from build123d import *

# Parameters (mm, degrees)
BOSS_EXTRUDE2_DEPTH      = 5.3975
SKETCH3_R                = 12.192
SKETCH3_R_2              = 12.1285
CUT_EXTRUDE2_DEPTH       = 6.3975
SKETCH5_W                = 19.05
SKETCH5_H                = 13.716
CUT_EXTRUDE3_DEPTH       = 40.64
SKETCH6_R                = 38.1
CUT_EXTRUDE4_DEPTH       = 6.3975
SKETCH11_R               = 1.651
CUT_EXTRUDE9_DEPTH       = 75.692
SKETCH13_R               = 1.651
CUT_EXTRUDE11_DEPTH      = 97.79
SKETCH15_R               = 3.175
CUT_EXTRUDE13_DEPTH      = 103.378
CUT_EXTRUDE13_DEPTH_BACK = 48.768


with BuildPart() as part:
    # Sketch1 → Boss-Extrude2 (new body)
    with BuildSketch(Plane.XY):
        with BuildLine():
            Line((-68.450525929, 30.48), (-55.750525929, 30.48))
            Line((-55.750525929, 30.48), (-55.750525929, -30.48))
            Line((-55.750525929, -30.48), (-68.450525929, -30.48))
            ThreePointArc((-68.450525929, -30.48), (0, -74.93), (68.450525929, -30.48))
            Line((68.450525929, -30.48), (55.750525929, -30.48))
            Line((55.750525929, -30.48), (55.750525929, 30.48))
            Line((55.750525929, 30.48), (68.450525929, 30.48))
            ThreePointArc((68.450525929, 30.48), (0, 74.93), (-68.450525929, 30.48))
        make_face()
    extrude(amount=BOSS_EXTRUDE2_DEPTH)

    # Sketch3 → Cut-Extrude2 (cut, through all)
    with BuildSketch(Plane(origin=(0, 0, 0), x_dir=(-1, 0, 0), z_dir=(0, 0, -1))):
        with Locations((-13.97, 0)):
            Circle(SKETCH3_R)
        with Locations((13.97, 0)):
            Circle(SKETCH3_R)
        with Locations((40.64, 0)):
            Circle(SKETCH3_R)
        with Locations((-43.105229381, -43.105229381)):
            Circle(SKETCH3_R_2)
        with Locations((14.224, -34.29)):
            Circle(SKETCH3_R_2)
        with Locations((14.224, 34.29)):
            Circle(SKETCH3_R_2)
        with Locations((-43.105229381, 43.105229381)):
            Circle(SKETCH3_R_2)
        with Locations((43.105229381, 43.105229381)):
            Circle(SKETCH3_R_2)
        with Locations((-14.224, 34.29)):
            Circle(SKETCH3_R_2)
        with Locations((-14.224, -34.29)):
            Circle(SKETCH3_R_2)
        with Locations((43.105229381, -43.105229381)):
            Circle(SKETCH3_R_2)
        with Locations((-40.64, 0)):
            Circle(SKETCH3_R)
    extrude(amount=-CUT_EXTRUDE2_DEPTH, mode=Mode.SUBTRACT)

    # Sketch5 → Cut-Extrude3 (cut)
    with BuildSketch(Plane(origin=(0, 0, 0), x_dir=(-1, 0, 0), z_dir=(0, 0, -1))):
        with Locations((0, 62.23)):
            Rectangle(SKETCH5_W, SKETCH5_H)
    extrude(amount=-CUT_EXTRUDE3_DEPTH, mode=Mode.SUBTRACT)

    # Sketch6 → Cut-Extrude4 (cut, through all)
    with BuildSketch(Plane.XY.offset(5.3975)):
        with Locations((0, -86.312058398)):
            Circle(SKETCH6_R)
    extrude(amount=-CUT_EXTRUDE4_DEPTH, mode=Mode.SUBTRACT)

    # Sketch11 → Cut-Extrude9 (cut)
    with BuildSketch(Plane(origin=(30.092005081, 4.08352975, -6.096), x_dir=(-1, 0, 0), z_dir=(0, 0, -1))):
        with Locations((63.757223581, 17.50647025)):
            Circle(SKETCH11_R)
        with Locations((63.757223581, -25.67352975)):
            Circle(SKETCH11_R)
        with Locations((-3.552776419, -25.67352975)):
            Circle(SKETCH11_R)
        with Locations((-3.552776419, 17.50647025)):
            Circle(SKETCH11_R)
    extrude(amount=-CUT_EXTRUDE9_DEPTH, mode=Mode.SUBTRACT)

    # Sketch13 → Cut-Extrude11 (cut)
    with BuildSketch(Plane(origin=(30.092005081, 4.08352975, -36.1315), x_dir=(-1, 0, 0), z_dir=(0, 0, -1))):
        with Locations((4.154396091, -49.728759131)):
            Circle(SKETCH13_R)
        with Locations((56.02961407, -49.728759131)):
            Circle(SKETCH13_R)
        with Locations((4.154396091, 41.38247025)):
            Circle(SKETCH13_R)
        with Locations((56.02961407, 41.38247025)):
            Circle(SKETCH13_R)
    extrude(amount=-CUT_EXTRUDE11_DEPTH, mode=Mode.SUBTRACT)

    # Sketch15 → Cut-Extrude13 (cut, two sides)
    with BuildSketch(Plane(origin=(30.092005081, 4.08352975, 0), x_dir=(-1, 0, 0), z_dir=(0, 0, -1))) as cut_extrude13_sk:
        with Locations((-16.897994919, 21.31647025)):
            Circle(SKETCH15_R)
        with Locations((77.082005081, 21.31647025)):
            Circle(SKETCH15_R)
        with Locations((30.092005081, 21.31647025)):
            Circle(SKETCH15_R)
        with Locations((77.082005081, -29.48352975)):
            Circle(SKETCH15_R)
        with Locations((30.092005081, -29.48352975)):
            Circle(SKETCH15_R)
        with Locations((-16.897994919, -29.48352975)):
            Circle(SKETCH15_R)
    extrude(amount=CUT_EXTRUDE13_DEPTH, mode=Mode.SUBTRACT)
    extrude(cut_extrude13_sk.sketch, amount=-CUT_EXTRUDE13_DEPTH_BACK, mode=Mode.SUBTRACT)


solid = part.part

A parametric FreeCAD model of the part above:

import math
import FreeCAD as App
import Part
import Sketcher
Q = App.Units.Quantity


def add_polygon(sketch, points):
    """Adds a closed chain of lines whose ends are joined by coincident constraints."""
    first, n = sketch.GeometryCount, len(points)
    for a, b in zip(points, points[1:] + points[:1]):
        sketch.addGeometry(Part.LineSegment(App.Vector(*a, 0), App.Vector(*b, 0)), False)
    for i in range(n):
        sketch.addConstraint(Sketcher.Constraint("Coincident", first + i, 2, first + (i + 1) % n, 1))

doc = App.newDocument("Part")
params = doc.addObject("Spreadsheet::Sheet", "Params")
for row, (alias, value) in enumerate([
    ("sketch1_radius", "2.95 in"),
    ("sketch1_width", "0.5 in"),
    ("sketch1_height", "2.4 in"),
    ("pad1_length", "0.2125 in"),
    ("sketch2_diameter", "0.96 in"),
    ("sketch2_diameter2", "0.955 in"),
    ("sketch3_width", "0.75 in"),
    ("sketch3_height", "0.54 in"),
    ("pocket2_length", "1.6 in"),
    ("sketch4_diameter", "3 in"),
    ("sketch5_diameter", "0.13 in"),
    ("pocket4_length", "2.98 in"),
    ("sketch6_diameter", "0.13 in"),
    ("pocket5_length", "3.85 in"),
    ("sketch7_diameter", "0.25 in"),
], start=1):
    params.set(f"A{row}", alias)
    params.set(f"B{row}", "=" + value)
    params.setAlias(f"B{row}", alias)

body = doc.addObject("PartDesign::Body", "Body")

sketch1 = body.newObject("Sketcher::SketchObject", "Sketch")
sketch1.AttachmentSupport = (doc.getObject("XY_Plane"), [""])
sketch1.MapMode = "FlatFace"
sketch1.addGeometry([
    Part.LineSegment(App.Vector(-68, 30, 0), App.Vector(-56, 30, 0)),
    Part.LineSegment(App.Vector(-56, 30, 0), App.Vector(-56, -30, 0)),
    Part.LineSegment(App.Vector(-56, -30, 0), App.Vector(-68, -30, 0)),
    Part.ArcOfCircle(Part.Circle(App.Vector(0, 0, 0), App.Vector(0, 0, 1), 75), math.radians(-156), math.radians(-24)),
    Part.LineSegment(App.Vector(68, -30, 0), App.Vector(56, -30, 0)),
    Part.LineSegment(App.Vector(56, -30, 0), App.Vector(56, 30, 0)),
    Part.LineSegment(App.Vector(56, 30, 0), App.Vector(68, 30, 0)),
    Part.ArcOfCircle(Part.Circle(App.Vector(0, 0, 0), App.Vector(0, 0, 1), 75), math.radians(24), math.radians(156)),
], False)
sketch1.addConstraint([
    Sketcher.Constraint("Coincident", 0, 2, 1, 1),
    Sketcher.Constraint("Coincident", 1, 2, 2, 1),
    Sketcher.Constraint("Coincident", 2, 2, 3, 1),
    Sketcher.Constraint("Coincident", 3, 2, 4, 1),
    Sketcher.Constraint("Coincident", 4, 2, 5, 1),
    Sketcher.Constraint("Coincident", 5, 2, 6, 1),
    Sketcher.Constraint("Coincident", 6, 2, 7, 1),
    Sketcher.Constraint("Coincident", 7, 2, 0, 1),
    Sketcher.Constraint("Horizontal", 0),
    Sketcher.Constraint("Vertical", 1),
    Sketcher.Constraint("Horizontal", 2),
    Sketcher.Constraint("Horizontal", 4),
    Sketcher.Constraint("Vertical", 5),
    Sketcher.Constraint("Horizontal", 6),
    Sketcher.Constraint("Coincident", 3, 3, -1, 1),
    Sketcher.Constraint("Coincident", 7, 3, -1, 1),
    Sketcher.Constraint("Equal", 3, 7),
    Sketcher.Constraint("Symmetric", 0, 2, 4, 2, -1, 1),
    Sketcher.Constraint("Horizontal", 2, 2, 3, 2),
    Sketcher.Constraint("Horizontal", 0, 2, 5, 2),
    Sketcher.Constraint("Radius", 3, Q("2.95 in")),
    Sketcher.Constraint("DistanceX", 0, 1, 0, 2, Q("0.5 in")),
    Sketcher.Constraint("DistanceY", 1, 2, 1, 1, Q("2.4 in")),
])
sketch1.setExpression("Constraints[20]", "Params.sketch1_radius")
sketch1.setExpression("Constraints[21]", "Params.sketch1_width")
sketch1.setExpression("Constraints[22]", "Params.sketch1_height")
pad1 = body.newObject("PartDesign::Pad", "Pad")
pad1.Profile = sketch1
pad1.setExpression("Length", "Params.pad1_length")

sketch2 = body.newObject("Sketcher::SketchObject", "Sketch001")
sketch2.AttachmentSupport = (doc.getObject("XY_Plane"), [""])
sketch2.MapMode = "FlatFace"
sketch2.addGeometry([
    Part.Circle(App.Vector(14, 0, 0), App.Vector(0, 0, 1), 12),
    Part.Circle(App.Vector(-14, 0, 0), App.Vector(0, 0, 1), 12),
    Part.Circle(App.Vector(-41, 0, 0), App.Vector(0, 0, 1), 12),
    Part.Circle(App.Vector(43, -43, 0), App.Vector(0, 0, 1), 12),
    Part.Circle(App.Vector(-14, -34, 0), App.Vector(0, 0, 1), 12),
    Part.Circle(App.Vector(-14, 34, 0), App.Vector(0, 0, 1), 12),
    Part.Circle(App.Vector(43, 43, 0), App.Vector(0, 0, 1), 12),
    Part.Circle(App.Vector(-43, 43, 0), App.Vector(0, 0, 1), 12),
    Part.Circle(App.Vector(14, 34, 0), App.Vector(0, 0, 1), 12),
    Part.Circle(App.Vector(14, -34, 0), App.Vector(0, 0, 1), 12),
    Part.Circle(App.Vector(-43, -43, 0), App.Vector(0, 0, 1), 12),
    Part.Circle(App.Vector(41, 0, 0), App.Vector(0, 0, 1), 12),
], False)
sketch2.addConstraint([
    Sketcher.Constraint("Equal", 0, 1),
    Sketcher.Constraint("Equal", 1, 2),
    Sketcher.Constraint("Equal", 3, 4),
    Sketcher.Constraint("Equal", 4, 5),
    Sketcher.Constraint("Equal", 5, 6),
    Sketcher.Constraint("Equal", 6, 7),
    Sketcher.Constraint("Equal", 7, 8),
    Sketcher.Constraint("Equal", 8, 9),
    Sketcher.Constraint("Equal", 9, 10),
    Sketcher.Constraint("Equal", 2, 11),
    Sketcher.Constraint("Symmetric", 0, 3, 1, 3, -1, 1),
    Sketcher.Constraint("Symmetric", 3, 3, 7, 3, -1, 1),
    Sketcher.Constraint("Symmetric", 4, 3, 8, 3, -1, 1),
    Sketcher.Constraint("Symmetric", 5, 3, 9, 3, -1, 1),
    Sketcher.Constraint("Symmetric", 6, 3, 10, 3, -1, 1),
    Sketcher.Constraint("Symmetric", 2, 3, 11, 3, -1, 1),
    Sketcher.Constraint("Symmetric", 6, 3, 7, 3, -2),
    Sketcher.Constraint("Symmetric", 5, 3, 8, 3, -2),
    Sketcher.Constraint("PointOnObject", 0, 3, -1),
    Sketcher.Constraint("PointOnObject", 2, 3, -1),
    Sketcher.Constraint("Diameter", 0, Q("0.96 in")),
    Sketcher.Constraint("Diameter", 3, Q("0.955 in")),
    Sketcher.Constraint("DistanceX", 2, 3, -1, 1, Q("1.6 in")),
    Sketcher.Constraint("DistanceX", 1, 3, 0, 3, Q("1.1 in")),
    Sketcher.Constraint("DistanceY", 4, 3, 5, 3, Q("2.7 in")),
    Sketcher.Constraint("DistanceX", 4, 3, -1, 1, Q("0.56 in")),
    Sketcher.Constraint("DistanceX", -1, 1, 3, 3, 43.105229),
    Sketcher.Constraint("DistanceY", 3, 3, -1, 1, 43.105229),
])
sketch2.setExpression("Constraints[20]", "Params.sketch2_diameter")
sketch2.setExpression("Constraints[21]", "Params.sketch2_diameter2")
pocket1 = body.newObject("PartDesign::Pocket", "Pocket")
pocket1.Profile = sketch2
pocket1.Type = "ThroughAll"
pocket1.Reversed = True

sketch3 = body.newObject("Sketcher::SketchObject", "Sketch002")
sketch3.AttachmentSupport = (doc.getObject("XY_Plane"), [""])
sketch3.MapMode = "FlatFace"
add_polygon(sketch3, [(10, 69), (10, 55), (-10, 55), (-10, 69)])
sketch3.addConstraint([
    Sketcher.Constraint("Vertical", 0),
    Sketcher.Constraint("Horizontal", 1),
    Sketcher.Constraint("Vertical", 2),
    Sketcher.Constraint("Horizontal", 3),
    Sketcher.Constraint("DistanceX", 1, 2, 1, 1, Q("0.75 in")),
    Sketcher.Constraint("DistanceY", 0, 2, 0, 1, Q("0.54 in")),
    Sketcher.Constraint("DistanceY", -1, 1, 0, 2, Q("2.18 in")),
    Sketcher.Constraint("DistanceX", -1, 1, 0, 2, Q("0.375 in")),
])
sketch3.setExpression("Constraints[8]", "Params.sketch3_width")
sketch3.setExpression("Constraints[9]", "Params.sketch3_height")
pocket2 = body.newObject("PartDesign::Pocket", "Pocket001")
pocket2.Profile = sketch3
pocket2.setExpression("Length", "Params.pocket2_length")
pocket2.Reversed = True

sketch4 = body.newObject("Sketcher::SketchObject", "Sketch003")
sketch4.AttachmentSupport = (doc.getObject("XY_Plane"), [""])
sketch4.MapMode = "FlatFace"
sketch4.AttachmentOffset = App.Placement(App.Vector(0, 0, 0.2125 * 25.4), App.Rotation())
sketch4.addGeometry(Part.Circle(App.Vector(0, -86, 0), App.Vector(0, 0, 1), 38), False)
sketch4.addConstraint([
    Sketcher.Constraint("PointOnObject", 0, 3, -2),
    Sketcher.Constraint("Diameter", 0, Q("3 in")),
    Sketcher.Constraint("DistanceY", 0, 3, -1, 1, 86.312058),
])
sketch4.setExpression("Constraints[1]", "Params.sketch4_diameter")
pocket3 = body.newObject("PartDesign::Pocket", "Pocket002")
pocket3.Profile = sketch4
pocket3.Type = "ThroughAll"

sketch5 = body.newObject("Sketcher::SketchObject", "Sketch004")
sketch5.AttachmentSupport = (doc.getObject("XY_Plane"), [""])
sketch5.MapMode = "FlatFace"
sketch5.AttachmentOffset = App.Placement(App.Vector(0, 0, -0.24 * 25.4), App.Rotation())
sketch5.addGeometry([
    Part.Circle(App.Vector(-33.7, 21.6, 0), App.Vector(0, 0, 1), 1.7),
    Part.Circle(App.Vector(-33.7, -21.6, 0), App.Vector(0, 0, 1), 1.7),
    Part.Circle(App.Vector(33.6, -21.6, 0), App.Vector(0, 0, 1), 1.7),
    Part.Circle(App.Vector(33.6, 21.6, 0), App.Vector(0, 0, 1), 1.7),
], False)
sketch5.addConstraint([
    Sketcher.Constraint("Equal", 0, 1),
    Sketcher.Constraint("Equal", 1, 2),
    Sketcher.Constraint("Equal", 2, 3),
    Sketcher.Constraint("Symmetric", 0, 3, 1, 3, -1),
    Sketcher.Constraint("Symmetric", 2, 3, 3, 3, -1),
    Sketcher.Constraint("Horizontal", 1, 3, 2, 3),
    Sketcher.Constraint("Diameter", 0, Q("0.13 in")),
    Sketcher.Constraint("DistanceY", 1, 3, 0, 3, Q("1.7 in")),
    Sketcher.Constraint("DistanceX", 1, 3, 2, 3, Q("2.65 in")),
    Sketcher.Constraint("DistanceX", 0, 3, -1, 1, 33.665219),
])
sketch5.setExpression("Constraints[6]", "Params.sketch5_diameter")
pocket4 = body.newObject("PartDesign::Pocket", "Pocket003")
pocket4.Profile = sketch5
pocket4.setExpression("Length", "Params.pocket4_length")
pocket4.Reversed = True

sketch6 = body.newObject("Sketcher::SketchObject", "Sketch005")
sketch6.AttachmentSupport = (doc.getObject("XY_Plane"), [""])
sketch6.MapMode = "FlatFace"
sketch6.AttachmentOffset = App.Placement(App.Vector(0, 0, -1.4225 * 25.4), App.Rotation())
sketch6.addGeometry([
    Part.Circle(App.Vector(25.9, -45.6, 0), App.Vector(0, 0, 1), 1.7),
    Part.Circle(App.Vector(-25.9, -45.6, 0), App.Vector(0, 0, 1), 1.7),
    Part.Circle(App.Vector(25.9, 45.5, 0), App.Vector(0, 0, 1), 1.7),
    Part.Circle(App.Vector(-25.9, 45.5, 0), App.Vector(0, 0, 1), 1.7),
], False)
sketch6.addConstraint([
    Sketcher.Constraint("Equal", 0, 1),
    Sketcher.Constraint("Equal", 1, 2),
    Sketcher.Constraint("Equal", 2, 3),
    Sketcher.Constraint("Symmetric", 0, 3, 1, 3, -2),
    Sketcher.Constraint("Symmetric", 2, 3, 3, 3, -2),
    Sketcher.Constraint("Vertical", 0, 3, 2, 3),
    Sketcher.Constraint("Diameter", 0, Q("0.13 in")),
    Sketcher.Constraint("DistanceY", -1, 1, 2, 3, Q("1.79 in")),
    Sketcher.Constraint("DistanceX", -1, 1, 0, 3, 25.937609),
    Sketcher.Constraint("DistanceY", 0, 3, -1, 1, 45.645229),
])
sketch6.setExpression("Constraints[6]", "Params.sketch6_diameter")
pocket5 = body.newObject("PartDesign::Pocket", "Pocket004")
pocket5.Profile = sketch6
pocket5.setExpression("Length", "Params.pocket5_length")
pocket5.Reversed = True

sketch7 = body.newObject("Sketcher::SketchObject", "Sketch006")
sketch7.AttachmentSupport = (doc.getObject("XY_Plane"), [""])
sketch7.MapMode = "FlatFace"
sketch7.addGeometry([
    Part.Circle(App.Vector(47, 25.4, 0), App.Vector(0, 0, 1), 3.2),
    Part.Circle(App.Vector(-47, 25.4, 0), App.Vector(0, 0, 1), 3.2),
    Part.Circle(App.Vector(0, 25.4, 0), App.Vector(0, 0, 1), 3.2),
    Part.Circle(App.Vector(-47, -25.4, 0), App.Vector(0, 0, 1), 3.2),
    Part.Circle(App.Vector(0, -25.4, 0), App.Vector(0, 0, 1), 3.2),
    Part.Circle(App.Vector(47, -25.4, 0), App.Vector(0, 0, 1), 3.2),
], False)
sketch7.addConstraint([
    Sketcher.Constraint("Equal", 0, 1),
    Sketcher.Constraint("Equal", 1, 2),
    Sketcher.Constraint("Equal", 2, 3),
    Sketcher.Constraint("Equal", 3, 4),
    Sketcher.Constraint("Equal", 4, 5),
    Sketcher.Constraint("Symmetric", 0, 3, 3, 3, -1, 1),
    Sketcher.Constraint("Symmetric", 2, 3, 4, 3, -1, 1),
    Sketcher.Constraint("Symmetric", 1, 3, 5, 3, -1, 1),
    Sketcher.Constraint("Symmetric", 0, 3, 1, 3, -2),
    Sketcher.Constraint("PointOnObject", 2, 3, -2),
    Sketcher.Constraint("Horizontal", 1, 3, 2, 3),
    Sketcher.Constraint("Diameter", 0, Q("0.25 in")),
    Sketcher.Constraint("DistanceY", -1, 1, 0, 3, Q("1 in")),
    Sketcher.Constraint("DistanceX", 1, 3, 0, 3, Q("3.7 in")),
])
sketch7.setExpression("Constraints[11]", "Params.sketch7_diameter")
pocket6 = body.newObject("PartDesign::Pocket", "Pocket005")
pocket6.Profile = sketch7
pocket6.Type = "ThroughAll"
pocket6.Midplane = True

doc.recompute()
